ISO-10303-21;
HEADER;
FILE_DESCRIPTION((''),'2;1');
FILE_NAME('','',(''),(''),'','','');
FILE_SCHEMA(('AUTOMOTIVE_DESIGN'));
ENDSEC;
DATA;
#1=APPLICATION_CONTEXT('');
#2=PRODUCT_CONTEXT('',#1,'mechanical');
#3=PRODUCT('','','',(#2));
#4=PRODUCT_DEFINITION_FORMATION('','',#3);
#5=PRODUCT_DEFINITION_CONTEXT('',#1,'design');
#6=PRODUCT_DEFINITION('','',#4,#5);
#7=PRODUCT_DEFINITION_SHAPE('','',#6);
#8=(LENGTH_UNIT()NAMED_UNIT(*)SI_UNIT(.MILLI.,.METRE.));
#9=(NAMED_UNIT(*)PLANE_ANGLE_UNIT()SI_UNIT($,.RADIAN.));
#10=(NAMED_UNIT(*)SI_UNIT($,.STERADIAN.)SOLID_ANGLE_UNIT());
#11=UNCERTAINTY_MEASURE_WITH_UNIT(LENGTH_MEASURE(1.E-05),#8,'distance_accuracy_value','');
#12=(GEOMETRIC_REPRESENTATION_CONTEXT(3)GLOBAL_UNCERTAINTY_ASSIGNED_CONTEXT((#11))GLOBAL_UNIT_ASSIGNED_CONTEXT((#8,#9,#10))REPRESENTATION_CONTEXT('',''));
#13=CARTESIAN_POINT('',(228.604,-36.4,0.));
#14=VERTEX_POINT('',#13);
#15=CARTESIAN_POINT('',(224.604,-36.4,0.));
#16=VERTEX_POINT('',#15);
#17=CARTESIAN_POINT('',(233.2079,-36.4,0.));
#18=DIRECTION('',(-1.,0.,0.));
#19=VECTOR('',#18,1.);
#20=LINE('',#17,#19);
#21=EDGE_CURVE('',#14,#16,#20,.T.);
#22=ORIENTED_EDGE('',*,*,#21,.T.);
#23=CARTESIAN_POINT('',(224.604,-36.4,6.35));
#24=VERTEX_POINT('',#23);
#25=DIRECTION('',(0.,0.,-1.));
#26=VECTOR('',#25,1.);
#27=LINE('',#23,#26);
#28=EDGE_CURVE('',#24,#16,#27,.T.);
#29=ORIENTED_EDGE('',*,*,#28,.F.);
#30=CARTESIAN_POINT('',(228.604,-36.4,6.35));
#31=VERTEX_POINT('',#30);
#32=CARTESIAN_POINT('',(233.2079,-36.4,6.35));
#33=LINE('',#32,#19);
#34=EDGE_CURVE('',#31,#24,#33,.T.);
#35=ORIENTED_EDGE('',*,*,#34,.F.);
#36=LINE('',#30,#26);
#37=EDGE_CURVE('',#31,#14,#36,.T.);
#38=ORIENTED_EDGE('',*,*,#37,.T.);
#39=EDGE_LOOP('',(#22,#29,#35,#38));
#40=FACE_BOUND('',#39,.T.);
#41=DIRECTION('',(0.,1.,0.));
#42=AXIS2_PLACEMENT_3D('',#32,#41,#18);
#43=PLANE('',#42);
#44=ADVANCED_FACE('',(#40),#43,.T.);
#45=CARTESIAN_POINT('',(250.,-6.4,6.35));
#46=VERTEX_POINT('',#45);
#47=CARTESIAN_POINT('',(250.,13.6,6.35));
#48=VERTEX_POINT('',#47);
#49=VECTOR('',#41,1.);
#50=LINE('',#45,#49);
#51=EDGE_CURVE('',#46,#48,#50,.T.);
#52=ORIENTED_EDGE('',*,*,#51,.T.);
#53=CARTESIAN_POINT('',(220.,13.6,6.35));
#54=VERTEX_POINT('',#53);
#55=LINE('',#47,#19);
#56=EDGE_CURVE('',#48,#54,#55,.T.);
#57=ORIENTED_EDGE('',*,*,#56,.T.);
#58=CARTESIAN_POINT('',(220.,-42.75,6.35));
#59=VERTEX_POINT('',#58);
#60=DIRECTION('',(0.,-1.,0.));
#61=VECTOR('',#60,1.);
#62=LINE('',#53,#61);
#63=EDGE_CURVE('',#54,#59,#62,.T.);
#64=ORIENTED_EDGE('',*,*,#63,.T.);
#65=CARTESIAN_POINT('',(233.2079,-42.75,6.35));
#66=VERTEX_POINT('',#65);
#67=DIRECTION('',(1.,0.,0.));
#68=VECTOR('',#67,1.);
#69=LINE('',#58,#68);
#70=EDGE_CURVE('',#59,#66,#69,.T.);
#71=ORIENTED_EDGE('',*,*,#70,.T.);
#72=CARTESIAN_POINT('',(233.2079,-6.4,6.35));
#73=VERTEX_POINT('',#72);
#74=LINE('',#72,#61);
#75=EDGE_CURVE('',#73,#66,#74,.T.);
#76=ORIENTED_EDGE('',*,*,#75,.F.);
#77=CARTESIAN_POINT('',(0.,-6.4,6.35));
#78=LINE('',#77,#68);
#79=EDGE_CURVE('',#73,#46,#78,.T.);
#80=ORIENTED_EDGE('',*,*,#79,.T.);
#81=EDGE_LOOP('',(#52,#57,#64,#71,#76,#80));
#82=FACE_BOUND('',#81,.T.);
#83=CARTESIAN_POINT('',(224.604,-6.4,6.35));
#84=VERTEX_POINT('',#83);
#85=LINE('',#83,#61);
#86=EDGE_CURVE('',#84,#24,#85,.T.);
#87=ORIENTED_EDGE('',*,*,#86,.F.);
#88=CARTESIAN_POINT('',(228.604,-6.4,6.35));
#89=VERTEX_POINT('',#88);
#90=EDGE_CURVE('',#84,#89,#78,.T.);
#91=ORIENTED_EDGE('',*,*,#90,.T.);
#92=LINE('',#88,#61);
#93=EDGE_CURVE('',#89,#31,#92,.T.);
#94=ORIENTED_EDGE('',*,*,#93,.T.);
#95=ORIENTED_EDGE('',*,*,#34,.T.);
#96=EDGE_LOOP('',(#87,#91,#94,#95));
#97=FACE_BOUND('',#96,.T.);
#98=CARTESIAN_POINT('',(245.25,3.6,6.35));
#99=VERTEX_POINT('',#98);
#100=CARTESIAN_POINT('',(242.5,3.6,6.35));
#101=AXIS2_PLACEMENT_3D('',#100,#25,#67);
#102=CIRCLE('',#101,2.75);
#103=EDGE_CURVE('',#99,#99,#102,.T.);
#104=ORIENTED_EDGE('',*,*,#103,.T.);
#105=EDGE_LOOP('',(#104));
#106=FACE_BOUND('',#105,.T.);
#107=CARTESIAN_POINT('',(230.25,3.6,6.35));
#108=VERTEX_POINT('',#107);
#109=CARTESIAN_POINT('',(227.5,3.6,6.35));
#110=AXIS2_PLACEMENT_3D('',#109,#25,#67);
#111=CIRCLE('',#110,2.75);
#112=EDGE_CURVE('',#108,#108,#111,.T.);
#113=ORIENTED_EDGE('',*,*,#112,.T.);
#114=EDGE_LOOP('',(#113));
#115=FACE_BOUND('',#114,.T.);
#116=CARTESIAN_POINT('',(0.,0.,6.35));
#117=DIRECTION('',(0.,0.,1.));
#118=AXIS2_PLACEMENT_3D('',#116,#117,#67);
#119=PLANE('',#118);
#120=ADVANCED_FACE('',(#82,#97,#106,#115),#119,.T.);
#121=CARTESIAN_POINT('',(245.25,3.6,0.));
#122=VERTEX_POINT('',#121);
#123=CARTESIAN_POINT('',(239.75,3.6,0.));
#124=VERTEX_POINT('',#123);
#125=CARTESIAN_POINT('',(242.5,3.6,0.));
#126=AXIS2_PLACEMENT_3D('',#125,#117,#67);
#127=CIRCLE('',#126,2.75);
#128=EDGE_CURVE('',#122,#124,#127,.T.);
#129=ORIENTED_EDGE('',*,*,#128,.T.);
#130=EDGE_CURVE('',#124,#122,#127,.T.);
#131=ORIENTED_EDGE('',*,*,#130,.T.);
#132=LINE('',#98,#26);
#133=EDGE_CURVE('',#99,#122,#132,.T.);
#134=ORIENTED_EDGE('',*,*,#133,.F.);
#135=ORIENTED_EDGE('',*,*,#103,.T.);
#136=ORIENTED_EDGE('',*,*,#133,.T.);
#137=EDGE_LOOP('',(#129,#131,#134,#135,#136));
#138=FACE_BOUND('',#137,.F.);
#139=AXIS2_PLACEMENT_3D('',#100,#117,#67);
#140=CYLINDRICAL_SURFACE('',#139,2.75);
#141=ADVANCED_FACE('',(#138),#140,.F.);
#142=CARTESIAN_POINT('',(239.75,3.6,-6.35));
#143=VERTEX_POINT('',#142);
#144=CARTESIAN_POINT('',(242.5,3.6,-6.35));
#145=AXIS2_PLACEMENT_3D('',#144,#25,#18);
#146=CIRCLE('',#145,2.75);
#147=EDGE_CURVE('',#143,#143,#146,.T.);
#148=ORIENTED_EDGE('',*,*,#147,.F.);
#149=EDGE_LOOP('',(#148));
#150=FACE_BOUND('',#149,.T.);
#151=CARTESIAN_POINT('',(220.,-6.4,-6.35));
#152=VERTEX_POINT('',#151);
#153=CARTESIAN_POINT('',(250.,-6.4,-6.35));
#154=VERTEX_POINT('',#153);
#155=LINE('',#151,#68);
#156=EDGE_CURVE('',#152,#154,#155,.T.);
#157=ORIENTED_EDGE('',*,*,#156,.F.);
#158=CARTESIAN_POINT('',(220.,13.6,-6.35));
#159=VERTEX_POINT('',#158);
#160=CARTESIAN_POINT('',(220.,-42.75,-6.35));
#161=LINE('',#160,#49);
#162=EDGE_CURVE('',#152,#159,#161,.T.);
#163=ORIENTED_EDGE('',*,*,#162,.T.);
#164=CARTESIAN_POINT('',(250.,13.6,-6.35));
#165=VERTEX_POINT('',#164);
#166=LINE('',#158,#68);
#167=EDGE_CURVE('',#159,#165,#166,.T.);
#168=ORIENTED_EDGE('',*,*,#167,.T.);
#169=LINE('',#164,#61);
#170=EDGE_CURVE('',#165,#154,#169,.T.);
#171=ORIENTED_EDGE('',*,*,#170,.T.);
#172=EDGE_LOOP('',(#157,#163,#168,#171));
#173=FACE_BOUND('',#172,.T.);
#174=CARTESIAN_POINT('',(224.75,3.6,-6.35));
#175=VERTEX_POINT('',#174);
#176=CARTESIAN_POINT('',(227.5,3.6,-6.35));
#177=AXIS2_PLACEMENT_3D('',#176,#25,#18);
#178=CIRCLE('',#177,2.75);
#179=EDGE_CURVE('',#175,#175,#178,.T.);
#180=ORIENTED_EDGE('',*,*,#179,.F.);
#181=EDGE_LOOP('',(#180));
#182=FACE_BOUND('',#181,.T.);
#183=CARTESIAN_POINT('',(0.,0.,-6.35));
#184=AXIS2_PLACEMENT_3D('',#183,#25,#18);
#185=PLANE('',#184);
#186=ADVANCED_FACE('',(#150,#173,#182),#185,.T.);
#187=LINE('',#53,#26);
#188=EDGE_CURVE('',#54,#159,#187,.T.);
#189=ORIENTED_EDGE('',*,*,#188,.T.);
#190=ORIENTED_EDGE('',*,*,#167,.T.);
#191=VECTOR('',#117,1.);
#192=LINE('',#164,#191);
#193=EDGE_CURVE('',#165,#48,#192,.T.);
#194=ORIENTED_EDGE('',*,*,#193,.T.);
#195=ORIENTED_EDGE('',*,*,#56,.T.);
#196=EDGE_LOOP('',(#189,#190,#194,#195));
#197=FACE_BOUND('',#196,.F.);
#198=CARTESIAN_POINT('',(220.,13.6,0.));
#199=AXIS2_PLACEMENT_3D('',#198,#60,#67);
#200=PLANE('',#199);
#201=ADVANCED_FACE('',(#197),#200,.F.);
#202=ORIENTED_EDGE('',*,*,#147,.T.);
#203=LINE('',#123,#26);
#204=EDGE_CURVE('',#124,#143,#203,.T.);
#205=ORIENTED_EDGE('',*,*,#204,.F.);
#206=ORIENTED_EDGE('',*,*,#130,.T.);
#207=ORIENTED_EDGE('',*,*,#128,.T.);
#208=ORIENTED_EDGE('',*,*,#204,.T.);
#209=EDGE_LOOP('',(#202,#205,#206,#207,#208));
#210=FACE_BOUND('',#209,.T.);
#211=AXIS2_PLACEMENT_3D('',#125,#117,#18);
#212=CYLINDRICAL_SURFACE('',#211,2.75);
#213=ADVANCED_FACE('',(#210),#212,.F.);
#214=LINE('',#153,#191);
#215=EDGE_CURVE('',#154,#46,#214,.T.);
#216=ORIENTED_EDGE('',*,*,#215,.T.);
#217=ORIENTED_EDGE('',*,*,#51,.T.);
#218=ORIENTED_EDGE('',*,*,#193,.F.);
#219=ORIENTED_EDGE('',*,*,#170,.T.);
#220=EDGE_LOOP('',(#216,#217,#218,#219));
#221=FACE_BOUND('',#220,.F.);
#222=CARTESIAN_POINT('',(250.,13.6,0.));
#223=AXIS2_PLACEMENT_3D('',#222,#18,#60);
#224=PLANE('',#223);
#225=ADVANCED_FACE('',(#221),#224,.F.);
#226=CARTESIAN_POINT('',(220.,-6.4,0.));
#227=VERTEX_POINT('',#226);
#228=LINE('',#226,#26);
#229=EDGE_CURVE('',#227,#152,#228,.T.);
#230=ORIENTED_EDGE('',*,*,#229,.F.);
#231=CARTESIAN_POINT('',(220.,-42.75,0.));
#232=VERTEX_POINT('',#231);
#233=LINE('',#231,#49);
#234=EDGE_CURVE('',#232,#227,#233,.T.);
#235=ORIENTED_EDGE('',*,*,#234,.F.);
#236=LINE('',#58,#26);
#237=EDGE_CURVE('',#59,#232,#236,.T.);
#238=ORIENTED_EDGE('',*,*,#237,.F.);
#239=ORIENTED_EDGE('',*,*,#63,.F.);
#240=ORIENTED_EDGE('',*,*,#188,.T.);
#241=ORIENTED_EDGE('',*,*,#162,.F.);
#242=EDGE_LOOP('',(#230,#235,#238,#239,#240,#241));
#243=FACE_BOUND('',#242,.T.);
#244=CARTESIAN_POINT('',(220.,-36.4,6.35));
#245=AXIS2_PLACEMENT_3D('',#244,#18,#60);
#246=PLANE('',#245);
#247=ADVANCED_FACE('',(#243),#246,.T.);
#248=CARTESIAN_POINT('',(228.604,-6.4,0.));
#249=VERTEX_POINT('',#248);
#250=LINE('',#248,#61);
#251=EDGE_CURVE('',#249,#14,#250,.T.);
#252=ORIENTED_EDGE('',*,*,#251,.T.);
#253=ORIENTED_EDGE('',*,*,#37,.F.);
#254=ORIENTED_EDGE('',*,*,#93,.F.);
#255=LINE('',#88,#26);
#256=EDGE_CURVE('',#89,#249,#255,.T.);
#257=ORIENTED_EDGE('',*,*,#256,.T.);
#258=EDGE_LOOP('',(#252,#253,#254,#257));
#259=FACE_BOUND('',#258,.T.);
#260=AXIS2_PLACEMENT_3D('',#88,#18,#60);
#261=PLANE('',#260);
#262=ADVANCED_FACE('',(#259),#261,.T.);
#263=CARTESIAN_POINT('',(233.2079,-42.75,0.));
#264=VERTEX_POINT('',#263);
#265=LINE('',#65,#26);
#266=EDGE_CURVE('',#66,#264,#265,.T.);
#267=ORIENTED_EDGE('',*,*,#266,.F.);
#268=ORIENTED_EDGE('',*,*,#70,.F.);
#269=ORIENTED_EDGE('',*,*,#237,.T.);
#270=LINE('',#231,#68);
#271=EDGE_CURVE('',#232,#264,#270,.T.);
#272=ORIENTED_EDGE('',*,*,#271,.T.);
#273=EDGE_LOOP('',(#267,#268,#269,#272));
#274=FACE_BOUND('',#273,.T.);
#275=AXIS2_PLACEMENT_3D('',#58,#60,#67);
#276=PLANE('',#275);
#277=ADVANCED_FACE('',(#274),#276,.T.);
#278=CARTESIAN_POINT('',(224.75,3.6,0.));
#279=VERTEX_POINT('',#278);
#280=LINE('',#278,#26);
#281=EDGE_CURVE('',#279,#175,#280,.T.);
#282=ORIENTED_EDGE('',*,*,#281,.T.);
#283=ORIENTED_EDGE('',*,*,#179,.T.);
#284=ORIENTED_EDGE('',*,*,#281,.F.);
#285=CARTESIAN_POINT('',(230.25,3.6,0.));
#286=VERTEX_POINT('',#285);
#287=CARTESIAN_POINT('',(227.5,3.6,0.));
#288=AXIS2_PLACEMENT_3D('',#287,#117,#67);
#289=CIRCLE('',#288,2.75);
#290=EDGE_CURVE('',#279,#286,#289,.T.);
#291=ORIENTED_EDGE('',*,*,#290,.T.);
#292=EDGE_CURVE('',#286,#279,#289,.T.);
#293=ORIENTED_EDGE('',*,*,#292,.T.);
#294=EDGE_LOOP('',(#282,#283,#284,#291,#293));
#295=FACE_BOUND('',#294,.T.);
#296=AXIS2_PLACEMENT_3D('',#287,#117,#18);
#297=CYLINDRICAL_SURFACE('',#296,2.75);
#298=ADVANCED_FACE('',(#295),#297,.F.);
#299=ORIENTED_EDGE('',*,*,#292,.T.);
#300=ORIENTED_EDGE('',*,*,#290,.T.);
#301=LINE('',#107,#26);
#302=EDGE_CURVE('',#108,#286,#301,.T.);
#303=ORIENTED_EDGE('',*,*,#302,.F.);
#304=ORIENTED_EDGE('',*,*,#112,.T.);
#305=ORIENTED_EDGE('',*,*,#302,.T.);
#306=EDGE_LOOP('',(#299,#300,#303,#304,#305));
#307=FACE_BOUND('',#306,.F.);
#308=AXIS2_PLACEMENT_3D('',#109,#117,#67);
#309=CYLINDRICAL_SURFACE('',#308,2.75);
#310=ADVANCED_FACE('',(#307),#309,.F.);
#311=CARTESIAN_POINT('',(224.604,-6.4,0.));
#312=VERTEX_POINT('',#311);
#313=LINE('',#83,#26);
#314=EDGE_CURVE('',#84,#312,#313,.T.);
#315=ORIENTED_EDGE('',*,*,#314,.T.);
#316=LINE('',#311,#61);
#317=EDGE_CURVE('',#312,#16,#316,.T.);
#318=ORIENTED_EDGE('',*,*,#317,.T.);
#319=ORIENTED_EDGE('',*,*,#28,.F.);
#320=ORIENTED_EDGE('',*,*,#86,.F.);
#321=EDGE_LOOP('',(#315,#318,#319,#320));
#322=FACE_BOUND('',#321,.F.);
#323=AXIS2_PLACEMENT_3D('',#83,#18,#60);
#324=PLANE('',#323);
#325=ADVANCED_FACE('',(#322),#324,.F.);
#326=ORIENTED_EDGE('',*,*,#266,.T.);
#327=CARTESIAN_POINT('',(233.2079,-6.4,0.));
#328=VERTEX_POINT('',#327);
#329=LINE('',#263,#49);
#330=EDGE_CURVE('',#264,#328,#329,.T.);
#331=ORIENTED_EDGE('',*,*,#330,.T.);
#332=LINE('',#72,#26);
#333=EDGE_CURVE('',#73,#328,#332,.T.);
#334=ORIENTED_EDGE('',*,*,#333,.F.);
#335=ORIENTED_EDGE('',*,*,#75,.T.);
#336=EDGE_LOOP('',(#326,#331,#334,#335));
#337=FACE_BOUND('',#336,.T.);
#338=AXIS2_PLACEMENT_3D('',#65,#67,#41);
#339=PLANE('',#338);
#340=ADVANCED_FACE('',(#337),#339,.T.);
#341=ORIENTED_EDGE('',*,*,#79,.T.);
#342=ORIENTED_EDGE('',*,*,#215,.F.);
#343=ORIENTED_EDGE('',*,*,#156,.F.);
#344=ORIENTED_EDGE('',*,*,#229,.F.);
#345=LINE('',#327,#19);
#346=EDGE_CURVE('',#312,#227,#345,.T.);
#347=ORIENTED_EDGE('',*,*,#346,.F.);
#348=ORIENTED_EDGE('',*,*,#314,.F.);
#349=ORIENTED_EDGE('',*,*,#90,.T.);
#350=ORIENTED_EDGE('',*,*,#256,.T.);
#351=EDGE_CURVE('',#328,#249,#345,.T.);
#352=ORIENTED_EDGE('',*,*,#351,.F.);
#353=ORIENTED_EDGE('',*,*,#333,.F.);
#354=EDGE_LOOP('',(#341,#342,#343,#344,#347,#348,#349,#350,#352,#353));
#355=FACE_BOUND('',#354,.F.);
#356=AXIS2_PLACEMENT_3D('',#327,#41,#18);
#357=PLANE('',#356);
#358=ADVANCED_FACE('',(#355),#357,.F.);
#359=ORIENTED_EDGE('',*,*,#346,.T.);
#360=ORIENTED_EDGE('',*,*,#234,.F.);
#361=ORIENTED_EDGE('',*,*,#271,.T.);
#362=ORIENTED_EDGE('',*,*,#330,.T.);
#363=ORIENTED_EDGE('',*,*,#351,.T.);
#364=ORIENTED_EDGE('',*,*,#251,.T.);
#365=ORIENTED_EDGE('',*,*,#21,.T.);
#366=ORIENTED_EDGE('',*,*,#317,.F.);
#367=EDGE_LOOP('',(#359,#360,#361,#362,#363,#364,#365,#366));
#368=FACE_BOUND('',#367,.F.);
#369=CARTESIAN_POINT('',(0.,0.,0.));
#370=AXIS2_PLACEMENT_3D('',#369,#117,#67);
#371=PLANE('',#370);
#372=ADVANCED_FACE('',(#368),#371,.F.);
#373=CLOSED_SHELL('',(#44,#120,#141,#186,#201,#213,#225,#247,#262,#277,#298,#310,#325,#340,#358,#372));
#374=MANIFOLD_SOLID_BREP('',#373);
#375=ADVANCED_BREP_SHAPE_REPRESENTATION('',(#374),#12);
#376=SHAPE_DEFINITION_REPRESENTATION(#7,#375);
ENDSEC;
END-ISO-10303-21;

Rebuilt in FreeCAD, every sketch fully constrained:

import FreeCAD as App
import Part
import Sketcher

V = App.Vector
Q = App.Units.Quantity

doc = App.newDocument("Part")
body = doc.addObject("PartDesign::Body", "Body")

sketch1 = doc.addObject("Sketcher::SketchObject", "Sketch")
body.addObject(sketch1)
sketch1.AttachmentSupport = (doc.XY_Plane, [""])
sketch1.MapMode = "FlatFace"
sketch1.addGeometry(Part.LineSegment(V(220, 14, 0), V(220, -6, 0)), False)
sketch1.addGeometry(Part.LineSegment(V(220, -6, 0), V(250, -6, 0)), False)
sketch1.addGeometry(Part.LineSegment(V(250, -6, 0), V(250, 14, 0)), False)
sketch1.addGeometry(Part.LineSegment(V(250, 14, 0), V(220, 14, 0)), False)
sketch1.addConstraint(Sketcher.Constraint("Coincident", 0, 2, 1, 1))
sketch1.addConstraint(Sketcher.Constraint("Coincident", 1, 2, 2, 1))
sketch1.addConstraint(Sketcher.Constraint("Coincident", 2, 2, 3, 1))
sketch1.addConstraint(Sketcher.Constraint("Coincident", 3, 2, 0, 1))
sketch1.addConstraint(Sketcher.Constraint("Vertical", 0))
sketch1.addConstraint(Sketcher.Constraint("Horizontal", 1))
sketch1.addConstraint(Sketcher.Constraint("Vertical", 2))
sketch1.addConstraint(Sketcher.Constraint("Horizontal", 3))
sketch1.addConstraint(Sketcher.Constraint("DistanceX", 1, 1, 1, 2, Q("1.1811 in")))
sketch1.addConstraint(Sketcher.Constraint("DistanceY", 0, 2, 0, 1, Q("0.7874 in")))
sketch1.addConstraint(Sketcher.Constraint("DistanceX", -1, 1, 0, 2, Q("220 mm")))
sketch1.addConstraint(Sketcher.Constraint("DistanceY", 0, 2, -1, 1, Q("6.4 mm")))
pad1 = doc.addObject("PartDesign::Pad", "Pad")
body.addObject(pad1)
pad1.Profile = sketch1
pad1.Length = Q("0.25 in")

sketch2 = doc.addObject("Sketcher::SketchObject", "Sketch001")
body.addObject(sketch2)
sketch2.AttachmentSupport = (doc.XY_Plane, [""])
sketch2.MapMode = "FlatFace"
sketch2.AttachmentOffset = App.Placement(V(0, 0, 0.25 * 25.4), App.Rotation())
sketch2.addGeometry(Part.Circle(V(227.5, 3.6, 0), V(0, 0, 1), 2.8), False)
sketch2.addGeometry(Part.Circle(V(242.5, 3.6, 0), V(0, 0, 1), 2.8), False)
sketch2.addConstraint(Sketcher.Constraint("Equal", 0, 1))
sketch2.addConstraint(Sketcher.Constraint("Horizontal", 0, 3, 1, 3))
sketch2.addConstraint(Sketcher.Constraint("Diameter", 0, Q("5.5 mm")))
sketch2.addConstraint(Sketcher.Constraint("DistanceX", -1, 1, 0, 3, Q("8.9567 in")))
sketch2.addConstraint(Sketcher.Constraint("DistanceY", -1, 1, 0, 3, Q("3.6 mm")))
sketch2.addConstraint(Sketcher.Constraint("DistanceX", -1, 1, 1, 3, Q("242.5 mm")))
pocket1 = doc.addObject("PartDesign::Pocket", "Pocket")
body.addObject(pocket1)
pocket1.Profile = sketch2
pocket1.Length = Q("0.25 in")

sketch3 = doc.addObject("Sketcher::SketchObject", "Sketch002")
body.addObject(sketch3)
sketch3.AttachmentSupport = (doc.XY_Plane, [""])
sketch3.MapMode = "FlatFace"
sketch3.AttachmentOffset = App.Placement(V(0, 0, 0.25 * 25.4), App.Rotation())
sketch3.addGeometry(Part.LineSegment(V(233.2, -6.4, 0), V(228.6, -6.4, 0)), False)
sketch3.addGeometry(Part.LineSegment(V(228.6, -6.4, 0), V(228.6, -36.4, 0)), False)
sketch3.addGeometry(Part.LineSegment(V(228.6, -36.4, 0), V(233.2, -36.4, 0)), False)
sketch3.addGeometry(Part.LineSegment(V(233.2, -36.4, 0), V(233.2, -6.4, 0)), False)
sketch3.addGeometry(Part.LineSegment(V(224.6, -6.4, 0), V(220, -6.4, 0)), False)
sketch3.addGeometry(Part.LineSegment(V(220, -6.4, 0), V(220, -36.4, 0)), False)
sketch3.addGeometry(Part.LineSegment(V(220, -36.4, 0), V(224.6, -36.4, 0)), False)
sketch3.addGeometry(Part.LineSegment(V(224.6, -36.4, 0), V(224.6, -6.4, 0)), False)
sketch3.addConstraint(Sketcher.Constraint("Coincident", 0, 2, 1, 1))
sketch3.addConstraint(Sketcher.Constraint("Coincident", 1, 2, 2, 1))
sketch3.addConstraint(Sketcher.Constraint("Coincident", 2, 2, 3, 1))
sketch3.addConstraint(Sketcher.Constraint("Coincident", 3, 2, 0, 1))
sketch3.addConstraint(Sketcher.Constraint("Coincident", 4, 2, 5, 1))
sketch3.addConstraint(Sketcher.Constraint("Coincident", 5, 2, 6, 1))
sketch3.addConstraint(Sketcher.Constraint("Coincident", 6, 2, 7, 1))
sketch3.addConstraint(Sketcher.Constraint("Coincident", 7, 2, 4, 1))
sketch3.addConstraint(Sketcher.Constraint("Horizontal", 0))
sketch3.addConstraint(Sketcher.Constraint("Vertical", 1))
sketch3.addConstraint(Sketcher.Constraint("Horizontal", 2))
sketch3.addConstraint(Sketcher.Constraint("Vertical", 3))
sketch3.addConstraint(Sketcher.Constraint("Horizontal", 4))
sketch3.addConstraint(Sketcher.Constraint("Vertical", 5))
sketch3.addConstraint(Sketcher.Constraint("Horizontal", 6))
sketch3.addConstraint(Sketcher.Constraint("Vertical", 7))
sketch3.addConstraint(Sketcher.Constraint("Horizontal", 3, 2, 4, 2))
sketch3.addConstraint(Sketcher.Constraint("Horizontal", 2, 2, 5, 2))
sketch3.addConstraint(Sketcher.Constraint("Equal", 2, 4))
sketch3.addConstraint(Sketcher.Constraint("DistanceY", 1, 2, 1, 1, Q("1.1811 in")))
sketch3.addConstraint(Sketcher.Constraint("DistanceX", 4, 2, 3, 2, Q("0.52 in")))
sketch3.addConstraint(Sketcher.Constraint("DistanceX", 6, 2, 1, 2, Q("4 mm")))
sketch3.addConstraint(Sketcher.Constraint("DistanceX", -1, 1, 0, 2, Q("228.604 mm")))
sketch3.addConstraint(Sketcher.Constraint("DistanceY", 0, 2, -1, 1, Q("6.4 mm")))
pad2 = doc.addObject("PartDesign::Pad", "Pad001")
body.addObject(pad2)
pad2.Profile = sketch3
pad2.Length = Q("0.25 in")
pad2.Reversed = True

sketch4 = doc.addObject("Sketcher::SketchObject", "Sketch003")
body.addObject(sketch4)
sketch4.AttachmentSupport = (doc.XY_Plane, [""])
sketch4.MapMode = "FlatFace"
sketch4.AttachmentOffset = App.Placement(V(0, 0, 0.25 * 25.4), App.Rotation())
sketch4.addGeometry(Part.LineSegment(V(233, -43, 0), V(233, -36, 0)), False)
sketch4.addGeometry(Part.LineSegment(V(233, -36, 0), V(220, -36, 0)), False)
sketch4.addGeometry(Part.LineSegment(V(220, -36, 0), V(220, -43, 0)), False)
sketch4.addGeometry(Part.LineSegment(V(220, -43, 0), V(233, -43, 0)), False)
sketch4.addConstraint(Sketcher.Constraint("Coincident", 0, 2, 1, 1))
sketch4.addConstraint(Sketcher.Constraint("Coincident", 1, 2, 2, 1))
sketch4.addConstraint(Sketcher.Constraint("Coincident", 2, 2, 3, 1))
sketch4.addConstraint(Sketcher.Constraint("Coincident", 3, 2, 0, 1))
sketch4.addConstraint(Sketcher.Constraint("Vertical", 0))
sketch4.addConstraint(Sketcher.Constraint("Horizontal", 1))
sketch4.addConstraint(Sketcher.Constraint("Vertical", 2))
sketch4.addConstraint(Sketcher.Constraint("Horizontal", 3))
sketch4.addConstraint(Sketcher.Constraint("DistanceY", 0, 1, 0, 2, Q("0.25 in")))
sketch4.addConstraint(Sketcher.Constraint("DistanceX", 1, 2, 1, 1, Q("0.52 in")))
sketch4.addConstraint(Sketcher.Constraint("DistanceX", -1, 1, 0, 2, Q("233.208 mm")))
sketch4.addConstraint(Sketcher.Constraint("DistanceY", 0, 2, -1, 1, Q("36.4 mm")))
pad3 = doc.addObject("PartDesign::Pad", "Pad002")
body.addObject(pad3)
pad3.Profile = sketch4
pad3.Length = Q("0.25 in")
pad3.Reversed = True

sketch5 = doc.addObject("Sketcher::SketchObject", "Sketch004")
body.addObject(sketch5)
sketch5.AttachmentSupport = (doc.XY_Plane, [""])
sketch5.MapMode = "FlatFace"
sketch5.addGeometry(Part.LineSegment(V(250, -6.4, 0), V(220, -6.4, 0)), False)
sketch5.addGeometry(Part.LineSegment(V(220, -6.4, 0), V(220, 13.6, 0)), False)
sketch5.addGeometry(Part.LineSegment(V(220, 13.6, 0), V(250, 13.6, 0)), False)
sketch5.addGeometry(Part.LineSegment(V(250, 13.6, 0), V(250, -6.4, 0)), False)
sketch5.addGeometry(Part.Circle(V(242.5, 3.6, 0), V(0, 0, 1), 2.8), False)
sketch5.addGeometry(Part.Circle(V(227.5, 3.6, 0), V(0, 0, 1), 2.8), False)
sketch5.addConstraint(Sketcher.Constraint("Coincident", 0, 2, 1, 1))
sketch5.addConstraint(Sketcher.Constraint("Coincident", 1, 2, 2, 1))
sketch5.addConstraint(Sketcher.Constraint("Coincident", 2, 2, 3, 1))
sketch5.addConstraint(Sketcher.Constraint("Coincident", 3, 2, 0, 1))
sketch5.addConstraint(Sketcher.Constraint("Horizontal", 0))
sketch5.addConstraint(Sketcher.Constraint("Vertical", 1))
sketch5.addConstraint(Sketcher.Constraint("Horizontal", 2))
sketch5.addConstraint(Sketcher.Constraint("Vertical", 3))
sketch5.addConstraint(Sketcher.Constraint("Equal", 4, 5))
sketch5.addConstraint(Sketcher.Constraint("Horizontal", 4, 3, 5, 3))
sketch5.addConstraint(Sketcher.Constraint("Diameter", 4, Q("5.5 mm")))
sketch5.addConstraint(Sketcher.Constraint("DistanceX", 0, 2, 0, 1, Q("1.1811 in")))
sketch5.addConstraint(Sketcher.Constraint("DistanceY", 1, 1, 1, 2, Q("0.7874 in")))
sketch5.addConstraint(Sketcher.Constraint("DistanceX", -1, 1, 5, 3, Q("8.9567 in")))
sketch5.addConstraint(Sketcher.Constraint("DistanceY", 0, 2, 5, 3, Q("0.3937 in")))
sketch5.addConstraint(Sketcher.Constraint("DistanceX", -1, 1, 4, 3, Q("242.5 mm")))
sketch5.addConstraint(Sketcher.Constraint("DistanceY", -1, 1, 4, 3, Q("3.6 mm")))
sketch5.addConstraint(Sketcher.Constraint("DistanceX", -1, 1, 0, 2, Q("220 mm")))
pad4 = doc.addObject("PartDesign::Pad", "Pad003")
body.addObject(pad4)
pad4.Profile = sketch5
pad4.Length = Q("0.25 in")
pad4.Reversed = True

doc.recompute()
